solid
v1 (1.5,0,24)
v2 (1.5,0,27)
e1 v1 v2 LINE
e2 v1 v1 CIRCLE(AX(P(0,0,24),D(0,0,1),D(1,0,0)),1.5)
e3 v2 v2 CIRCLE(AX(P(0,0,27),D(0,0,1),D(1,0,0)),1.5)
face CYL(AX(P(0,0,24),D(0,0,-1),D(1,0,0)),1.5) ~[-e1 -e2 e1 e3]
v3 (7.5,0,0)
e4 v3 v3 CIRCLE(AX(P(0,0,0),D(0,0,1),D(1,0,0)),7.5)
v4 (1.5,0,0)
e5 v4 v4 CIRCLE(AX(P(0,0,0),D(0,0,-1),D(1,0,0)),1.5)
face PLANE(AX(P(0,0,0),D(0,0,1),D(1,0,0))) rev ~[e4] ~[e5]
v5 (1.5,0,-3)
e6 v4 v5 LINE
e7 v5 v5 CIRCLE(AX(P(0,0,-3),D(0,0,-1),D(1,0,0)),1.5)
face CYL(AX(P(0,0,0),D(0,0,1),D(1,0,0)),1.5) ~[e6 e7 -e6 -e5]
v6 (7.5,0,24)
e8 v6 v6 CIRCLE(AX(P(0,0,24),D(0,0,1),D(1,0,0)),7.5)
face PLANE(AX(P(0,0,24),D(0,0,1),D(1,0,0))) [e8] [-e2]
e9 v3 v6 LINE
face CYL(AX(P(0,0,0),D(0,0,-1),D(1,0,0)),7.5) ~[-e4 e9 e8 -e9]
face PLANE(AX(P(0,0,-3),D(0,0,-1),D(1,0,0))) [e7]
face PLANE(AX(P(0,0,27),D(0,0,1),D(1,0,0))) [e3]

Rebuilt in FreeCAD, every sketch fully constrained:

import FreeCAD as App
import Part
import Sketcher
Q = App.Units.Quantity

doc = App.newDocument("Part")
body = doc.addObject("PartDesign::Body", "Body")

# Sketch on XY plane
sketch1 = body.newObject("Sketcher::SketchObject", "Sketch")
sketch1.AttachmentSupport = (doc.getObject("XY_Plane"), [""])
sketch1.MapMode = "FlatFace"
sketch1.addGeometry(Part.Circle(App.Vector(0, 0, 0), App.Vector(0, 0, 1), 8), False)
sketch1.addConstraint([
    Sketcher.Constraint("Coincident", 0, 3, -1, 1),
    Sketcher.Constraint("Diameter", 0, Q("15 mm")),
])
pad1 = body.newObject("PartDesign::Pad", "Pad")
pad1.Profile = sketch1
pad1.Length = 24

# Sketch on XY plane
sketch2 = body.newObject("Sketcher::SketchObject", "Sketch001")
sketch2.AttachmentSupport = (doc.getObject("XY_Plane"), [""])
sketch2.MapMode = "FlatFace"
sketch2.AttachmentOffset = App.Placement(App.Vector(0, 0, 24), App.Rotation())
sketch2.addGeometry(Part.Circle(App.Vector(0, 0, 0), App.Vector(0, 0, 1), 1.5), False)
sketch2.addConstraint([
    Sketcher.Constraint("Coincident", 0, 3, -1, 1),
    Sketcher.Constraint("Diameter", 0, Q("3 mm")),
])
pad2 = body.newObject("PartDesign::Pad", "Pad001")
pad2.Profile = sketch2
pad2.Length = 3

# Sketch on XY plane
sketch3 = body.newObject("Sketcher::SketchObject", "Sketch002")
sketch3.AttachmentSupport = (doc.getObject("XY_Plane"), [""])
sketch3.MapMode = "FlatFace"
sketch3.addGeometry(Part.Circle(App.Vector(0, 0, 0), App.Vector(0, 0, 1), 1.5), False)
sketch3.addConstraint([
    Sketcher.Constraint("Coincident", 0, 3, -1, 1),
    Sketcher.Constraint("Diameter", 0, Q("3 mm")),
])
pad3 = body.newObject("PartDesign::Pad", "Pad002")
pad3.Profile = sketch3
pad3.Length = 3
pad3.Reversed = True

doc.recompute()
